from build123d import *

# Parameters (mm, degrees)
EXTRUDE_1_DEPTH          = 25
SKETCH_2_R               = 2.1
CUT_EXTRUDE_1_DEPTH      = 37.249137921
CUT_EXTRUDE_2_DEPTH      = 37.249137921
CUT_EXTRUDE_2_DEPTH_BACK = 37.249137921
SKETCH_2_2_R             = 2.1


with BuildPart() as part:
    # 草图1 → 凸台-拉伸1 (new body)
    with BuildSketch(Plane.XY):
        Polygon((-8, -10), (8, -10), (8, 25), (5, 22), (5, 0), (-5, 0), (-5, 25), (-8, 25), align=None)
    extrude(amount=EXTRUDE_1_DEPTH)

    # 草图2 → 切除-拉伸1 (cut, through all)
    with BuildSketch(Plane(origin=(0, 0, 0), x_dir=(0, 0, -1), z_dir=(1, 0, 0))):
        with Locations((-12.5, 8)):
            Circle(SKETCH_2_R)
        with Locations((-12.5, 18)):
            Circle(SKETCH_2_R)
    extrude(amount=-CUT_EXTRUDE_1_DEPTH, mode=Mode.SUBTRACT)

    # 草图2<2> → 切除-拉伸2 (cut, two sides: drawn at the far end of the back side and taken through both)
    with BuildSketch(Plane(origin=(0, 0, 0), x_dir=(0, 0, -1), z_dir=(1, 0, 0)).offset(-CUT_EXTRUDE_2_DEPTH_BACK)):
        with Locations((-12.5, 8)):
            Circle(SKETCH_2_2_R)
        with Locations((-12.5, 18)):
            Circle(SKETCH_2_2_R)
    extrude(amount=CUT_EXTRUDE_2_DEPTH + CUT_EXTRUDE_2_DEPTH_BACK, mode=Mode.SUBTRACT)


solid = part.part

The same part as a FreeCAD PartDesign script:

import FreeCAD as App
import Part
import Sketcher

V = App.Vector
Q = App.Units.Quantity


def add_polygon(sketch, points):
    """Adds a closed chain of lines whose ends are joined by coincident constraints."""
    first, n = sketch.GeometryCount, len(points)
    for a, b in zip(points, points[1:] + points[:1]):
        sketch.addGeometry(Part.LineSegment(App.Vector(*a, 0), App.Vector(*b, 0)), False)
    for i in range(n):
        sketch.addConstraint(Sketcher.Constraint("Coincident", first + i, 2, first + (i + 1) % n, 1))

doc = App.newDocument("Part")
body = doc.addObject("PartDesign::Body", "Body")

# Sketch on XY plane
sketch1 = body.newObject("Sketcher::SketchObject", "Sketch")
sketch1.AttachmentSupport = (doc.getObject("XY_Plane"), [""])
sketch1.MapMode = "FlatFace"
add_polygon(sketch1, [(-8, -10), (8, -10), (8, 25), (5, 22), (5, 0), (-5, 0), (-5, 25), (-8, 25)])  # lines 0-7
sketch1.addConstraint(Sketcher.Constraint("Horizontal", 0))
sketch1.addConstraint(Sketcher.Constraint("Vertical", 1))
sketch1.addConstraint(Sketcher.Constraint("Vertical", 3))
sketch1.addConstraint(Sketcher.Constraint("Horizontal", 4))
sketch1.addConstraint(Sketcher.Constraint("Vertical", 5))
sketch1.addConstraint(Sketcher.Constraint("Horizontal", 6))
sketch1.addConstraint(Sketcher.Constraint("Vertical", 7))
sketch1.addConstraint(Sketcher.Constraint("Symmetric", 3, 2, 4, 2, -1, 1))
sketch1.addConstraint(Sketcher.Constraint("Symmetric", 1, 2, 6, 2, -2))
sketch1.addConstraint(Sketcher.Constraint("DistanceX", 0, 1, 0, 2, Q("16 mm")))
sketch1.addConstraint(Sketcher.Constraint("DistanceX", 4, 2, 4, 1, Q("10 mm")))
sketch1.addConstraint(Sketcher.Constraint("DistanceY", 1, 1, 1, 2, Q("35 mm")))
sketch1.addConstraint(Sketcher.Constraint("DistanceY", 3, 2, 3, 1, Q("22 mm")))
sketch1.addConstraint(Sketcher.Constraint("DistanceY", 5, 1, 5, 2, Q("25 mm")))
pad1 = body.newObject("PartDesign::Pad", "Pad")
pad1.Profile = sketch1
pad1.Length = 25

# Sketch on YZ plane
sketch2 = body.newObject("Sketcher::SketchObject", "Sketch001")
sketch2.AttachmentSupport = (doc.getObject("YZ_Plane"), [""])
sketch2.MapMode = "FlatFace"
sketch2.addGeometry(Part.Circle(V(8, 12.5, 0), V(0, 0, 1), 2.1), False)
sketch2.addGeometry(Part.Circle(V(18, 12.5, 0), V(0, 0, 1), 2.1), False)
sketch2.addConstraint(Sketcher.Constraint("Equal", 0, 1))
sketch2.addConstraint(Sketcher.Constraint("Horizontal", 0, 3, 1, 3))
sketch2.addConstraint(Sketcher.Constraint("Diameter", 0, Q("4.2 mm")))
sketch2.addConstraint(Sketcher.Constraint("DistanceX", -1, 1, 0, 3, Q("8 mm")))
sketch2.addConstraint(Sketcher.Constraint("DistanceX", -1, 1, 1, 3, Q("18 mm")))
sketch2.addConstraint(Sketcher.Constraint("DistanceY", -1, 1, 0, 3, Q("12.5 mm")))
pocket1 = body.newObject("PartDesign::Pocket", "Pocket")
pocket1.Profile = sketch2
pocket1.Type = "ThroughAll"

# Sketch on YZ plane
sketch3 = body.newObject("Sketcher::SketchObject", "Sketch002")
sketch3.AttachmentSupport = (doc.getObject("YZ_Plane"), [""])
sketch3.MapMode = "FlatFace"
sketch3.addGeometry(Part.Circle(V(8, 12.5, 0), V(0, 0, 1), 2.1), False)
sketch3.addGeometry(Part.Circle(V(18, 12.5, 0), V(0, 0, 1), 2.1), False)
sketch3.addConstraint(Sketcher.Constraint("Equal", 0, 1))
sketch3.addConstraint(Sketcher.Constraint("Horizontal", 0, 3, 1, 3))
sketch3.addConstraint(Sketcher.Constraint("Diameter", 0, Q("4.2 mm")))
sketch3.addConstraint(Sketcher.Constraint("DistanceX", -1, 1, 0, 3, Q("8 mm")))
sketch3.addConstraint(Sketcher.Constraint("DistanceX", -1, 1, 1, 3, Q("18 mm")))
sketch3.addConstraint(Sketcher.Constraint("DistanceY", -1, 1, 0, 3, Q("12.5 mm")))
pocket2 = body.newObject("PartDesign::Pocket", "Pocket001")
pocket2.Profile = sketch3
pocket2.Type = "ThroughAll"
pocket2.Midplane = True

doc.recompute()
